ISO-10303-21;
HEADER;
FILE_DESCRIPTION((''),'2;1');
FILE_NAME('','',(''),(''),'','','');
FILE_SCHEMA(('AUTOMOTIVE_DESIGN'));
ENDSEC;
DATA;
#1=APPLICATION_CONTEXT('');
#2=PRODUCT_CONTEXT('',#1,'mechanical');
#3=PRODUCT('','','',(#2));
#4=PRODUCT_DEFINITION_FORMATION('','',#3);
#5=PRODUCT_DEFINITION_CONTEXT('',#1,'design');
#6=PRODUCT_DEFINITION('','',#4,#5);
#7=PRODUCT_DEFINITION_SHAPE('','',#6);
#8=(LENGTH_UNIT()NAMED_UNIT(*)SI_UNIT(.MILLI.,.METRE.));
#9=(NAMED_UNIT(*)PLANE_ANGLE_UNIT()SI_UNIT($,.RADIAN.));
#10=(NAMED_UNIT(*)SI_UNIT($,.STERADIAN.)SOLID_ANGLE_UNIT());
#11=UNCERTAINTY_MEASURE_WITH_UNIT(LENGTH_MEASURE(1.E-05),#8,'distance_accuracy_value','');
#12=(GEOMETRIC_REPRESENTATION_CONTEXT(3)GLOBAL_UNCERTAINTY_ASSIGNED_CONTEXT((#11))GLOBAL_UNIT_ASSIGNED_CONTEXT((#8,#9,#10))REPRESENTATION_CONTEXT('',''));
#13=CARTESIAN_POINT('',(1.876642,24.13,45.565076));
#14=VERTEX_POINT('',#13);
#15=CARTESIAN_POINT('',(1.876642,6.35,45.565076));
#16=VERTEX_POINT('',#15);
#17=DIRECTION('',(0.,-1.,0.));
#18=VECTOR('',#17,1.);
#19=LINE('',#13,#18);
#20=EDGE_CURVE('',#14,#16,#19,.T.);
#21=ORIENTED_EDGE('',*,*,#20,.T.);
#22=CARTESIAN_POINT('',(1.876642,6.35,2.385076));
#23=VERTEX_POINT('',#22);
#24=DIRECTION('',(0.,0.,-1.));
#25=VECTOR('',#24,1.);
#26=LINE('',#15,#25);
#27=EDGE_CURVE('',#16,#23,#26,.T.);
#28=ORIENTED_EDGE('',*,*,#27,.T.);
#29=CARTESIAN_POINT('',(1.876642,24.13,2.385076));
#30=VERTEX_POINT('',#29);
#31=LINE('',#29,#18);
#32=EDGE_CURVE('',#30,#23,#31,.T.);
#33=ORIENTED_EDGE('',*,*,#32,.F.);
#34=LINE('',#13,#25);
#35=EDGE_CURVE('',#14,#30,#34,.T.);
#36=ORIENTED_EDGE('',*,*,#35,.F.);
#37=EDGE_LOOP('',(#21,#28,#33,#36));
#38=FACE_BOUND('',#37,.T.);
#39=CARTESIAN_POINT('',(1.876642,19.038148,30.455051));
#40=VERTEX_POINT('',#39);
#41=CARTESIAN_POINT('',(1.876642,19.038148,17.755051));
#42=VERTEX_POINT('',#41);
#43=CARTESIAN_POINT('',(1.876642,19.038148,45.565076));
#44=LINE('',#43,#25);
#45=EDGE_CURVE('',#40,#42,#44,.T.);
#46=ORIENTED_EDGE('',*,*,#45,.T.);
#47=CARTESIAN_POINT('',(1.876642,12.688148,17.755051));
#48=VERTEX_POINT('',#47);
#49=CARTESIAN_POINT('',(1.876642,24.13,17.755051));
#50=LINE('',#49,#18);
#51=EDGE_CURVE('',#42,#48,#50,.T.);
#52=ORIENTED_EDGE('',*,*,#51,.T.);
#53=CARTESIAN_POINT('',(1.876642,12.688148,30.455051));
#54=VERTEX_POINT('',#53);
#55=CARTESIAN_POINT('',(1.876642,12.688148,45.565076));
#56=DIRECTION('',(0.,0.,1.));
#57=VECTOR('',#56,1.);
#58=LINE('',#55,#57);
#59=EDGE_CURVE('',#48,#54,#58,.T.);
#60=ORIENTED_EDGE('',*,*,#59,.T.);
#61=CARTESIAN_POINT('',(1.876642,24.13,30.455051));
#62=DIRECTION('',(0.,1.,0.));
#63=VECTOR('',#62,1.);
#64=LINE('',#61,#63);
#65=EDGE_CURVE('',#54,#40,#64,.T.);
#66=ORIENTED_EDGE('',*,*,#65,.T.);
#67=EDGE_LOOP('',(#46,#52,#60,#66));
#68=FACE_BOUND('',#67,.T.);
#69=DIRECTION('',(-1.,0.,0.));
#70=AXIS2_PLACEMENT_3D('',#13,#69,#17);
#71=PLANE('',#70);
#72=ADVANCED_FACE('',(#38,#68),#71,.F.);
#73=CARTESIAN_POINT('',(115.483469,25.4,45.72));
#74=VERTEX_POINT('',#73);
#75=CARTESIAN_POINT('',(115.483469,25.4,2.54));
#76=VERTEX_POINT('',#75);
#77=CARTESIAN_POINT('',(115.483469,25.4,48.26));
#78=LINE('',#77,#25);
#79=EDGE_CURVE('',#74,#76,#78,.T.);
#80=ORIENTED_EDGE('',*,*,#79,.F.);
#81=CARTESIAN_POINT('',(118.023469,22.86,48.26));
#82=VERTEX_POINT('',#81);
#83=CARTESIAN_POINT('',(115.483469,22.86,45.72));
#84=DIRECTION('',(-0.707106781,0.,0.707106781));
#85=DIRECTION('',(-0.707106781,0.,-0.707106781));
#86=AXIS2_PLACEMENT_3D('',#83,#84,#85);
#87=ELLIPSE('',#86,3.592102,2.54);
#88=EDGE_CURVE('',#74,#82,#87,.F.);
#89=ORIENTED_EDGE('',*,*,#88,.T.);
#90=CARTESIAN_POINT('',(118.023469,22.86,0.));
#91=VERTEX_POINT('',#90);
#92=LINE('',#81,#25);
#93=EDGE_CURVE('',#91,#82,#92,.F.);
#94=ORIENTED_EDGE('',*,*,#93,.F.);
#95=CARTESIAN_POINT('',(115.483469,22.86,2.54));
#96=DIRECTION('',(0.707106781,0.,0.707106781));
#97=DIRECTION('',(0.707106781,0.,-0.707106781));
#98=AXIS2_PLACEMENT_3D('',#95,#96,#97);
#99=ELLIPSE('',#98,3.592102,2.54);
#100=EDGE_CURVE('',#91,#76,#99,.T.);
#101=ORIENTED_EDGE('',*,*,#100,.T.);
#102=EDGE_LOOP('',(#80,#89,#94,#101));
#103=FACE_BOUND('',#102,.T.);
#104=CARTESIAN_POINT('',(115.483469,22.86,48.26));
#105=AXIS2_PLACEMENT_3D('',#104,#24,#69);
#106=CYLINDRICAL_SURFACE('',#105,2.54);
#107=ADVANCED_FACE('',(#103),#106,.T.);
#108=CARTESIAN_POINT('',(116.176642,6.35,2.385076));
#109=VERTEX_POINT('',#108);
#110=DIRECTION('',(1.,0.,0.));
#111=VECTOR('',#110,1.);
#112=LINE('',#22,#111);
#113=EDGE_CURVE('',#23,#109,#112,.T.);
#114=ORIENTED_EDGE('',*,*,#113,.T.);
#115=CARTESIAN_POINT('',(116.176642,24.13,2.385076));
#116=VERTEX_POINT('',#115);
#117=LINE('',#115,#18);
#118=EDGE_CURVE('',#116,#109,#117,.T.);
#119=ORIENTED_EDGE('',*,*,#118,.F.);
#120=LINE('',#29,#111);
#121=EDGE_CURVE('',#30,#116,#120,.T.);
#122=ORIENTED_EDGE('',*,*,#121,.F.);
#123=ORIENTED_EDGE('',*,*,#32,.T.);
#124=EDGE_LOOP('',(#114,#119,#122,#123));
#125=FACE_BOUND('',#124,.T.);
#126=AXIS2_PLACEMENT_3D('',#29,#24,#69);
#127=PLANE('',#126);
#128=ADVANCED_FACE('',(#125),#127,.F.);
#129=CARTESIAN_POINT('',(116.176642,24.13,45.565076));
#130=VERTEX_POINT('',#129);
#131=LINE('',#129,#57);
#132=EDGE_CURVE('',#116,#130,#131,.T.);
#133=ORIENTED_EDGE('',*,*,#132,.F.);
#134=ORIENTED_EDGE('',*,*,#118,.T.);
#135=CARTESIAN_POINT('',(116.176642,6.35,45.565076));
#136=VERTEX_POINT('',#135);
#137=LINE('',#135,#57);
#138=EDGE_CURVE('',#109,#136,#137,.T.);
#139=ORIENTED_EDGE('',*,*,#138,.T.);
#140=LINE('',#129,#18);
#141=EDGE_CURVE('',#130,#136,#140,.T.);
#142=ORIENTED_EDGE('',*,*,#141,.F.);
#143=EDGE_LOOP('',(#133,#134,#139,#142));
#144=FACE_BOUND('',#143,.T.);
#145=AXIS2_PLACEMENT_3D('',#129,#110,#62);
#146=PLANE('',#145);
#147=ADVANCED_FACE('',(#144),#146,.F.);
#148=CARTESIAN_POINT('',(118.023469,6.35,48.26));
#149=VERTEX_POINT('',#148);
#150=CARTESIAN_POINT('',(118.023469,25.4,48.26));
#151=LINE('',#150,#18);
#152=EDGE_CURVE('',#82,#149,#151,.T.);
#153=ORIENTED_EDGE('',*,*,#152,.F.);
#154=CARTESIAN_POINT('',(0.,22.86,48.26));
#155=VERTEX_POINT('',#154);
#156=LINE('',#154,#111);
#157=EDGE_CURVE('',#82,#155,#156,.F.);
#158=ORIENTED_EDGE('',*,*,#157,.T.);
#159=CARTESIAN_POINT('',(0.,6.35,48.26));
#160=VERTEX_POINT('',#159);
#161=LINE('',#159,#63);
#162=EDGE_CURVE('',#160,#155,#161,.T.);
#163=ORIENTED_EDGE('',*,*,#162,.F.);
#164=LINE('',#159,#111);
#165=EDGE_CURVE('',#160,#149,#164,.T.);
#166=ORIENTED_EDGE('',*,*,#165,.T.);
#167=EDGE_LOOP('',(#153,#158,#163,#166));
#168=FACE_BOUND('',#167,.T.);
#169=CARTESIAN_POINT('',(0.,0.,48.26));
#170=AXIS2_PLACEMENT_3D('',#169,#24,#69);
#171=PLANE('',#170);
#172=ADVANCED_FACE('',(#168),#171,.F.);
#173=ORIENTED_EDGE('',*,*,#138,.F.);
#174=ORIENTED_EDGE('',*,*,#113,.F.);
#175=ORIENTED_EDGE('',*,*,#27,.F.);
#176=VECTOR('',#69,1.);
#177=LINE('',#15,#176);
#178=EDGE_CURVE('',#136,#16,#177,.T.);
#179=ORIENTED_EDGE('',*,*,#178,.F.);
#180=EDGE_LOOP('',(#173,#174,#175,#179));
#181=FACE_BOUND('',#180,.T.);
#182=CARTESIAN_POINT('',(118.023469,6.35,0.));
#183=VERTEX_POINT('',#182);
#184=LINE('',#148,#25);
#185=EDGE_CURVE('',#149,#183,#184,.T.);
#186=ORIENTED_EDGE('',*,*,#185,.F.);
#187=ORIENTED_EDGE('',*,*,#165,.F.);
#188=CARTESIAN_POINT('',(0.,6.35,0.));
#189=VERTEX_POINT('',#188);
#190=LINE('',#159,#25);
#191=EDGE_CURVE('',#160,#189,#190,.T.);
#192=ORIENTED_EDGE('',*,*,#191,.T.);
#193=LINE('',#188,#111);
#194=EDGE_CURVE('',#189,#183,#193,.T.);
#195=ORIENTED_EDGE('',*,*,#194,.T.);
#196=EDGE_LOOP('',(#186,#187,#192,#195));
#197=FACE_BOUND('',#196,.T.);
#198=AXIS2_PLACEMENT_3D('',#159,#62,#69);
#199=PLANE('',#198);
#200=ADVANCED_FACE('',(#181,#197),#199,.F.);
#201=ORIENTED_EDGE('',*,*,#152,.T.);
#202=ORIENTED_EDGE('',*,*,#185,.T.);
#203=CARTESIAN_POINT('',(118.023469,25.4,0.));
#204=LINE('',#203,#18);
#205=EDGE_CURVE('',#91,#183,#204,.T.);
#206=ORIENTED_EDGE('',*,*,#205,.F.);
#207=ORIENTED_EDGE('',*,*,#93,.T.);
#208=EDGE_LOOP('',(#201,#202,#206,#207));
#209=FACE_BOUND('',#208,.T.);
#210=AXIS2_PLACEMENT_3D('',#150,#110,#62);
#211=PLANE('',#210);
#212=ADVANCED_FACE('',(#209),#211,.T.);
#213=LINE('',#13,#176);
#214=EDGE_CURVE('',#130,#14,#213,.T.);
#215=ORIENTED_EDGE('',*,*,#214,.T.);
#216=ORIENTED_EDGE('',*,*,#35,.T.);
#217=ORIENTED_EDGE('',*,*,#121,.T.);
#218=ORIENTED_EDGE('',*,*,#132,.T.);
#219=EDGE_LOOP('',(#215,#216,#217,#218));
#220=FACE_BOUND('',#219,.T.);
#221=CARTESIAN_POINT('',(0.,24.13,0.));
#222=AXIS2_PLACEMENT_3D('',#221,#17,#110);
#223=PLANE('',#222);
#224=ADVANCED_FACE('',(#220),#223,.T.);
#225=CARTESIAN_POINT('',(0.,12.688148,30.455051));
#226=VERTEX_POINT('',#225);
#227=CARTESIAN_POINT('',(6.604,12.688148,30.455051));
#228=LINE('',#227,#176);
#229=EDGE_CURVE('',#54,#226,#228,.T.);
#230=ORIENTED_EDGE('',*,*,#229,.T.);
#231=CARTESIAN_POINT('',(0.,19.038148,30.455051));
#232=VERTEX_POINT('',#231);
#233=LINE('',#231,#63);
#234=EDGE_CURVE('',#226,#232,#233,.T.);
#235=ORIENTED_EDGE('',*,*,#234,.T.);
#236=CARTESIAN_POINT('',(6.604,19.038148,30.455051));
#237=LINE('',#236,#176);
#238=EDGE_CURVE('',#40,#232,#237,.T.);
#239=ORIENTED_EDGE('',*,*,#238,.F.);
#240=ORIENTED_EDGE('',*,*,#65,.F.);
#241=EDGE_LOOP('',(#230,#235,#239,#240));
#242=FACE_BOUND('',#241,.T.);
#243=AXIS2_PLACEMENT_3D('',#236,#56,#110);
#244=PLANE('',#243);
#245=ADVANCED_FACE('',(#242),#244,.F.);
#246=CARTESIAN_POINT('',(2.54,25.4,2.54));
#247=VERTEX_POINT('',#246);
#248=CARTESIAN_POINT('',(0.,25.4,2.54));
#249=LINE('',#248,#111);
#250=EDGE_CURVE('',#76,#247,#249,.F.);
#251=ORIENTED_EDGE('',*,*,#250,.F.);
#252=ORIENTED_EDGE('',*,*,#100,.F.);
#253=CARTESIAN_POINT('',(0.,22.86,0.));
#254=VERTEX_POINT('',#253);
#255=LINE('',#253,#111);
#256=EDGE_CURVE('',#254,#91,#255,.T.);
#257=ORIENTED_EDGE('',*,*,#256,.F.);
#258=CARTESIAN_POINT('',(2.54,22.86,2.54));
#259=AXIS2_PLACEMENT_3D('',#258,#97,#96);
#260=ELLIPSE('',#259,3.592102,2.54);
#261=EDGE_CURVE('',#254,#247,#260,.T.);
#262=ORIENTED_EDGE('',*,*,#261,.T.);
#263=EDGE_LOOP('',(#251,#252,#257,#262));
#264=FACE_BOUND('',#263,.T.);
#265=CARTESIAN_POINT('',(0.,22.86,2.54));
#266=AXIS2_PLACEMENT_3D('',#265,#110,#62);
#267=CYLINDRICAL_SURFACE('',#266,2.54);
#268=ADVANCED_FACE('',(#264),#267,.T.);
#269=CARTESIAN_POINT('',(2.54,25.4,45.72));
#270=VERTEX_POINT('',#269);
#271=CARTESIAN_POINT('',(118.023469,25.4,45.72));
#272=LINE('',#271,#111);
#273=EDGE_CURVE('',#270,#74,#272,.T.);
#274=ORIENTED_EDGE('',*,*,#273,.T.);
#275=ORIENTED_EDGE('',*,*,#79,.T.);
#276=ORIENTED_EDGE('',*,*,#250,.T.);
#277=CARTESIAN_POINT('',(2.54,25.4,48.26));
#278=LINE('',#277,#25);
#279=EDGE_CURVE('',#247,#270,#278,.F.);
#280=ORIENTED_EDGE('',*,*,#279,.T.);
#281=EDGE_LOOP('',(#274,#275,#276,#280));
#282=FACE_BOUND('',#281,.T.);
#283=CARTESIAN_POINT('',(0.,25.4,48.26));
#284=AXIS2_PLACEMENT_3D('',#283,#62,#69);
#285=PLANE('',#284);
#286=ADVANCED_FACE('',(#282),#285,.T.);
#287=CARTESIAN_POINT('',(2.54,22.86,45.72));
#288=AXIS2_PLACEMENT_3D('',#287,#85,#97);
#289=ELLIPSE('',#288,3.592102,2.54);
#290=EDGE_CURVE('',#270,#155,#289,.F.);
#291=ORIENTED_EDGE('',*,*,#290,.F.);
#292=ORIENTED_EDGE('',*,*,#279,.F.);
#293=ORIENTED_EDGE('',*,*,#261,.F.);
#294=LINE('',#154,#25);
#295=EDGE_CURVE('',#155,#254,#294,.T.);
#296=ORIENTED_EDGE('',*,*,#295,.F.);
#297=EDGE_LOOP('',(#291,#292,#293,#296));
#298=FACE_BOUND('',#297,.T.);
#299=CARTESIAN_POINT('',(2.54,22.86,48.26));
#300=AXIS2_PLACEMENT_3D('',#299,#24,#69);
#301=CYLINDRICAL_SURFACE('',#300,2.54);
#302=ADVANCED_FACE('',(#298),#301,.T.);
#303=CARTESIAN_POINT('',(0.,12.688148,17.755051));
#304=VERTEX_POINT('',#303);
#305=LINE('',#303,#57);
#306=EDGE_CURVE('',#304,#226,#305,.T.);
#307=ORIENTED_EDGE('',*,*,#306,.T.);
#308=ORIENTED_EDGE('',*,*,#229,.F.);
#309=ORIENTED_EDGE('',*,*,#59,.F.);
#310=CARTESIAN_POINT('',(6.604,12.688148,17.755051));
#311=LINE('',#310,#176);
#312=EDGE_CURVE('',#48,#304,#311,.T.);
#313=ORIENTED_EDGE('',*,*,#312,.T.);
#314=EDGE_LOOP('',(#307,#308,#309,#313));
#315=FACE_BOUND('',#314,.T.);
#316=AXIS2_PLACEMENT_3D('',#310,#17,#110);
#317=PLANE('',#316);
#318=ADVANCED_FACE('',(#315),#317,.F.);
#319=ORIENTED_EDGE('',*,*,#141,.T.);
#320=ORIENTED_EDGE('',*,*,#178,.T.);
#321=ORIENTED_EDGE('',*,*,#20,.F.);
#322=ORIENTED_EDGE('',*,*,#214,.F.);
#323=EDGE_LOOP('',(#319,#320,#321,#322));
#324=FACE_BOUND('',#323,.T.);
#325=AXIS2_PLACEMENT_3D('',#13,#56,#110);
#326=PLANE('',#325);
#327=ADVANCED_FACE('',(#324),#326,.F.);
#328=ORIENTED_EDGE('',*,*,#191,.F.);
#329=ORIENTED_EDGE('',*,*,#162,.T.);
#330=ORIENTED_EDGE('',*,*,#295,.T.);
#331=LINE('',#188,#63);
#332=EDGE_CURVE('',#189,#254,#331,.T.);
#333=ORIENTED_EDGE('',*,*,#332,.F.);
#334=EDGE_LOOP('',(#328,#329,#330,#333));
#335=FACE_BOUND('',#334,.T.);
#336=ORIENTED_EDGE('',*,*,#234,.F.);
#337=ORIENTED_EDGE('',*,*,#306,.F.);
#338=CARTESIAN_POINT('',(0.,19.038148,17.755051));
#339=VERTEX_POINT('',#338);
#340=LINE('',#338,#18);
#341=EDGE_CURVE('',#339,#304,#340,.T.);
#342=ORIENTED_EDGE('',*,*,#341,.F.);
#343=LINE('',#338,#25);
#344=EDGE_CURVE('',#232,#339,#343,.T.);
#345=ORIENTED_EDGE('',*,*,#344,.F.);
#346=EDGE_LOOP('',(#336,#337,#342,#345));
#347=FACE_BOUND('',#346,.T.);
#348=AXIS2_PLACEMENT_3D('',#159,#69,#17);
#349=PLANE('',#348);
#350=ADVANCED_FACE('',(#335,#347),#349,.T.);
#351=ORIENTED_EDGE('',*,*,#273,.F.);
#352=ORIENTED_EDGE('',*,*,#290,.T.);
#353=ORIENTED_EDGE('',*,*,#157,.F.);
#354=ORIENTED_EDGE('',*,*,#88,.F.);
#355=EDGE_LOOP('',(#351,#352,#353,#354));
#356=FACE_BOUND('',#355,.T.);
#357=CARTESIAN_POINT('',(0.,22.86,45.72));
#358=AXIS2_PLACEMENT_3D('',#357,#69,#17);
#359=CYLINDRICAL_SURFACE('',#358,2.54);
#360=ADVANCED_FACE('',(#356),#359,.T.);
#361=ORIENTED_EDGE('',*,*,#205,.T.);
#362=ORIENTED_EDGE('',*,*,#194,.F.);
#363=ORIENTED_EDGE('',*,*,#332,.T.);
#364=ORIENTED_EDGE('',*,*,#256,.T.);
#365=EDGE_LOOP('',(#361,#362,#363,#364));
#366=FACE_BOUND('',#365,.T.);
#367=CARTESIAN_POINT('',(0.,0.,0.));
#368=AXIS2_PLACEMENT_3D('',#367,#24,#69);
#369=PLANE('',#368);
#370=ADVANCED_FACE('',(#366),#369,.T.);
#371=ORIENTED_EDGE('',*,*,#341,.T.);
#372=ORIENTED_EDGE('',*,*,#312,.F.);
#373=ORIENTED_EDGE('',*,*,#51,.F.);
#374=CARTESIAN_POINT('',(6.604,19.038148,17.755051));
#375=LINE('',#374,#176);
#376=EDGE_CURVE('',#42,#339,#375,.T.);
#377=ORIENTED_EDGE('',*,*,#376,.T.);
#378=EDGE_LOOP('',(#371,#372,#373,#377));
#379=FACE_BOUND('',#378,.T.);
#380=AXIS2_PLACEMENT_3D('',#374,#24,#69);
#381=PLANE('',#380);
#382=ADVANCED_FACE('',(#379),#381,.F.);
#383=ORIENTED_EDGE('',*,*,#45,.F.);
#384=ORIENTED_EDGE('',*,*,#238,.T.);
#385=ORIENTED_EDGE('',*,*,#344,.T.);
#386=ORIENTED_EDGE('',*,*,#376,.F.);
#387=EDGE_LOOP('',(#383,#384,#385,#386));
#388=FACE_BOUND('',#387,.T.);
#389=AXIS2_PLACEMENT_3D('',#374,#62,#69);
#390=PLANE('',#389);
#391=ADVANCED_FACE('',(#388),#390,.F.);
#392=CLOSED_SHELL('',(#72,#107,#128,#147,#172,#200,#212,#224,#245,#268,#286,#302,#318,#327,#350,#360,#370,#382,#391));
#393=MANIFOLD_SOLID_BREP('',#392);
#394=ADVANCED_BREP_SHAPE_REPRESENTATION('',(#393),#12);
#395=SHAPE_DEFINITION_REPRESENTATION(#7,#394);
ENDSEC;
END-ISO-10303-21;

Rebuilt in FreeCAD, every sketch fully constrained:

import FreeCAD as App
import Part
import Sketcher
from FreeCAD import Vector
Q = App.Units.Quantity


def edges_at(feature, points):
    """Names of the edges that pass closest to the given points."""
    edges = feature.Shape.Edges
    near = lambda p: min(range(len(edges)), key=lambda i: edges[i].distToShape(Part.Vertex(*p))[0])
    return sorted({f"Edge{near(p) + 1}" for p in points})


def add_polygon(sketch, points):
    """Adds a closed chain of lines whose ends are joined by coincident constraints."""
    first, n = sketch.GeometryCount, len(points)
    for a, b in zip(points, points[1:] + points[:1]):
        sketch.addGeometry(Part.LineSegment(App.Vector(*a, 0), App.Vector(*b, 0)), False)
    for i in range(n):
        sketch.addConstraint(Sketcher.Constraint("Coincident", first + i, 2, first + (i + 1) % n, 1))

doc = App.newDocument("Part")
body = doc.addObject("PartDesign::Body", "Body")

# Sketch on XY plane
sketch1 = body.newObject("Sketcher::SketchObject", "Sketch")
sketch1.AttachmentSupport = (doc.getObject("XY_Plane"), [""])
sketch1.MapMode = "FlatFace"
add_polygon(sketch1, [(0, 25), (0, 6), (118, 6), (118, 25)])  # lines 0-3
sketch1.addConstraint([
    Sketcher.Constraint("Vertical", 0),
    Sketcher.Constraint("Horizontal", 1),
    Sketcher.Constraint("Vertical", 2),
    Sketcher.Constraint("Horizontal", 3),
    Sketcher.Constraint("PointOnObject", 0, 2, -2),
    Sketcher.Constraint("DistanceY", -1, 1, 2, 2, Q("1 in")),
    Sketcher.Constraint("DistanceY", 0, 2, 0, 1, Q("0.75 in")),
    Sketcher.Constraint("DistanceX", 1, 1, 1, 2, 118.023469),
])
pad1 = body.newObject("PartDesign::Pad", "Pad")
pad1.Profile = sketch1
pad1.Length = Q("1.9 in")

# Sketch on XZ plane
sketch2 = body.newObject("Sketcher::SketchObject", "Sketch001")
sketch2.AttachmentSupport = (doc.getObject("XZ_Plane"), [""])
sketch2.MapMode = "FlatFace"
sketch2.AttachmentOffset = App.Placement(Vector(0, 0, -0.25 * 25.4), App.Rotation())
add_polygon(sketch2, [(116, 2), (116, 46), (2, 46), (2, 2)])  # lines 0-3
sketch2.addConstraint([
    Sketcher.Constraint("Vertical", 0),
    Sketcher.Constraint("Horizontal", 1),
    Sketcher.Constraint("Vertical", 2),
    Sketcher.Constraint("Horizontal", 3),
    Sketcher.Constraint("DistanceX", 1, 2, 1, 1, Q("4.5 in")),
    Sketcher.Constraint("DistanceY", 0, 1, 0, 2, Q("1.7 in")),
    Sketcher.Constraint("DistanceX", -1, 1, 0, 2, 116.176642),
    Sketcher.Constraint("DistanceY", -1, 1, 0, 2, 45.565076),
])
pocket1 = body.newObject("PartDesign::Pocket", "Pocket")
pocket1.Profile = sketch2
pocket1.Length = Q("0.7 in")

# Sketch on YZ plane
sketch3 = body.newObject("Sketcher::SketchObject", "Sketch002")
sketch3.AttachmentSupport = (doc.getObject("YZ_Plane"), [""])
sketch3.MapMode = "FlatFace"
add_polygon(sketch3, [(19, 18), (13, 18), (13, 30), (19, 30)])  # lines 0-3
sketch3.addConstraint([
    Sketcher.Constraint("Horizontal", 0),
    Sketcher.Constraint("Vertical", 1),
    Sketcher.Constraint("Horizontal", 2),
    Sketcher.Constraint("Vertical", 3),
    Sketcher.Constraint("DistanceY", 1, 1, 1, 2, Q("0.5 in")),
    Sketcher.Constraint("DistanceX", 0, 2, 0, 1, Q("0.25 in")),
    Sketcher.Constraint("DistanceY", -1, 1, 0, 2, 17.755051),
    Sketcher.Constraint("DistanceX", -1, 1, 0, 2, 12.688148),
])
pocket2 = body.newObject("PartDesign::Pocket", "Pocket001")
pocket2.Profile = sketch3
pocket2.Length = Q("0.26 in")
pocket2.Reversed = True
doc.recompute()

fillet = body.newObject("PartDesign::Fillet", "Fillet")
fillet.Base = (pocket2, edges_at(pocket2, [
    (59.012, 25.4, 48.26),
    (59.012, 25.4, 0),
    (0, 25.4, 24.13),
    (118.023, 25.4, 24.13),
]))
fillet.Radius = Q("0.1 in")

doc.recompute()
